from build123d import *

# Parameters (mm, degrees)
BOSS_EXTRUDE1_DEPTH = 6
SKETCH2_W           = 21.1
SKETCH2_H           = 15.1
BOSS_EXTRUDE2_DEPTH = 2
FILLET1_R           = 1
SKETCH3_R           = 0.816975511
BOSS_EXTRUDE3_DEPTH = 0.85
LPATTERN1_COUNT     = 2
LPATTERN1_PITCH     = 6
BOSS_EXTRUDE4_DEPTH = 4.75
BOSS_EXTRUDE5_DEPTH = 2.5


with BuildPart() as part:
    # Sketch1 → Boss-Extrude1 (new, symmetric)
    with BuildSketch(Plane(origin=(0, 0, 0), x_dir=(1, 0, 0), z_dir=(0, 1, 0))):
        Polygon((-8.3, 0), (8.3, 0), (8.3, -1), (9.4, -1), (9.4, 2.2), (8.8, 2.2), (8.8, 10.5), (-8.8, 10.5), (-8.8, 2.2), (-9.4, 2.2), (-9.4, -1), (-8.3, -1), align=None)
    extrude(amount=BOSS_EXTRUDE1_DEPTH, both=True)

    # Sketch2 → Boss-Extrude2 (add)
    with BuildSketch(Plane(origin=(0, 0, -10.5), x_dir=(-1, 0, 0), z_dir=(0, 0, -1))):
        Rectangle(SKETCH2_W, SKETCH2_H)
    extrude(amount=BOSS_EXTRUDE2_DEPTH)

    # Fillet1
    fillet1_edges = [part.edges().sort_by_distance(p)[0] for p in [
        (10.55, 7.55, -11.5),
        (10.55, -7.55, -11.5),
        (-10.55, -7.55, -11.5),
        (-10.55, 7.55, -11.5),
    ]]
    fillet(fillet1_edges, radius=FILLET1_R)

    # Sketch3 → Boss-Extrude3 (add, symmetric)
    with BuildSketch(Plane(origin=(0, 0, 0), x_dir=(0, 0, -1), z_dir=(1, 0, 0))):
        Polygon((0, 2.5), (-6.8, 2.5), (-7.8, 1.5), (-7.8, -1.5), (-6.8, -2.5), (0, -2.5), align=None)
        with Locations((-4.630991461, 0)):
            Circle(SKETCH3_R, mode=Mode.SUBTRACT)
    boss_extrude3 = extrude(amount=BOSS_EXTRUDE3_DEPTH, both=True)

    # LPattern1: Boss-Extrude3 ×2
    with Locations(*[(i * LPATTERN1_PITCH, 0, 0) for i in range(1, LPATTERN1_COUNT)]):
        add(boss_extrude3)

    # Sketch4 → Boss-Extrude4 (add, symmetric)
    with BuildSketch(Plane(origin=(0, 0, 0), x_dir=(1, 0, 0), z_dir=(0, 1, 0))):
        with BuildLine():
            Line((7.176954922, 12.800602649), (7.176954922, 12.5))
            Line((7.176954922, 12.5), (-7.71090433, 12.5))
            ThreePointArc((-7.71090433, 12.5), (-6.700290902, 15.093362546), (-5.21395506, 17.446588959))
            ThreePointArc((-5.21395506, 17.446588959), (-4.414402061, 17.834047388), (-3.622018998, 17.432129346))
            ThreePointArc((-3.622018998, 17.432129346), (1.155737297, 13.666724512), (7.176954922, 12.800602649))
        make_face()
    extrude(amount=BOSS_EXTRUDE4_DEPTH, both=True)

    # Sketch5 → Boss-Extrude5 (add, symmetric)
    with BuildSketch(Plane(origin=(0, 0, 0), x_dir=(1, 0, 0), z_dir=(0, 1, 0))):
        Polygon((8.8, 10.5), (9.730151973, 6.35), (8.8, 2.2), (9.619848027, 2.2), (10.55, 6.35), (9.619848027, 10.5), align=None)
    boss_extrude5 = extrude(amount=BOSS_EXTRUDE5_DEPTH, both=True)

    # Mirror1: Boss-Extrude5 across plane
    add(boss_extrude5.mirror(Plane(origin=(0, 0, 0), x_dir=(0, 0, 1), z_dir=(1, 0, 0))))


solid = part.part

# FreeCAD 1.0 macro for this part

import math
import FreeCAD as App
import Part
import Sketcher


def edges_at(feature, points):
    """Names of the edges that pass closest to the given points."""
    edges = feature.Shape.Edges
    near = lambda p: min(range(len(edges)), key=lambda i: edges[i].distToShape(Part.Vertex(*p))[0])
    return sorted({f"Edge{near(p) + 1}" for p in points})

doc = App.newDocument("Part")
params = doc.addObject("Spreadsheet::Sheet", "Params")
for row, (alias, value) in enumerate([
    ("sketch1_height", "1 mm"),
    ("sketch1_width", "16.6 mm"),
    ("sketch1_width2", "1.1 mm"),
    ("sketch1_width3", "0.6 mm"),
    ("sketch1_height2", "3.2 mm"),
    ("pad1_length", "12 mm"),
    ("sketch2_width", "21.1 mm"),
    ("sketch2_height", "15.1 mm"),
    ("pad2_length", "2 mm"),
    ("fillet_radius", "1 mm"),
    ("sketch3_width", "3 mm"),
    ("sketch3_width2", "5 mm"),
    ("sketch3_height", "6.8 mm"),
    ("pad3_length", "1.7 mm"),
    ("linearpattern_pitch", "6 mm"),
    ("sketch4_radius", "1 mm"),
    ("pad4_length", "9.5 mm"),
    ("pad5_length", "5 mm"),
], start=1):
    params.set(f"A{row}", alias)
    params.set(f"B{row}", "=" + value)
    params.setAlias(f"B{row}", alias)

body = doc.addObject("PartDesign::Body", "Body")

# Sketch on XZ plane
sketch1 = body.newObject("Sketcher::SketchObject", "Sketch")
sketch1.AttachmentSupport = (doc.getObject("XZ_Plane"), [""])
sketch1.MapMode = "FlatFace"
sketch1.addGeometry([
    Part.LineSegment(App.Vector(-8.3, 0, 0), App.Vector(8.3, 0, 0)),  # 0
    Part.LineSegment(App.Vector(8.3, 0, 0), App.Vector(8.3, 1, 0)),  # 1
    Part.LineSegment(App.Vector(8.3, 1, 0), App.Vector(9.4, 1, 0)),  # 2
    Part.LineSegment(App.Vector(9.4, 1, 0), App.Vector(9.4, -2.2, 0)),  # 3
    Part.LineSegment(App.Vector(9.4, -2.2, 0), App.Vector(8.8, -2.2, 0)),  # 4
    Part.LineSegment(App.Vector(8.8, -2.2, 0), App.Vector(8.8, -10.5, 0)),  # 5
    Part.LineSegment(App.Vector(8.8, -10.5, 0), App.Vector(-8.8, -10.5, 0)),  # 6
    Part.LineSegment(App.Vector(-8.8, -10.5, 0), App.Vector(-8.8, -2.2, 0)),  # 7
    Part.LineSegment(App.Vector(-8.8, -2.2, 0), App.Vector(-9.4, -2.2, 0)),  # 8
    Part.LineSegment(App.Vector(-9.4, -2.2, 0), App.Vector(-9.4, 1, 0)),  # 9
    Part.LineSegment(App.Vector(-9.4, 1, 0), App.Vector(-8.3, 1, 0)),  # 10
    Part.LineSegment(App.Vector(-8.3, 1, 0), App.Vector(-8.3, 0, 0)),  # 11
], False)
sketch1.addConstraint([
    Sketcher.Constraint("Coincident", 0, 2, 1, 1),
    Sketcher.Constraint("Coincident", 1, 2, 2, 1),
    Sketcher.Constraint("Coincident", 2, 2, 3, 1),
    Sketcher.Constraint("Coincident", 3, 2, 4, 1),
    Sketcher.Constraint("Coincident", 4, 2, 5, 1),
    Sketcher.Constraint("Coincident", 5, 2, 6, 1),
    Sketcher.Constraint("Coincident", 6, 2, 7, 1),
    Sketcher.Constraint("Coincident", 7, 2, 8, 1),
    Sketcher.Constraint("Coincident", 8, 2, 9, 1),
    Sketcher.Constraint("Coincident", 9, 2, 10, 1),
    Sketcher.Constraint("Coincident", 10, 2, 11, 1),
    Sketcher.Constraint("Coincident", 11, 2, 0, 1),
    Sketcher.Constraint("Horizontal", 0),
    Sketcher.Constraint("Vertical", 1),
    Sketcher.Constraint("Horizontal", 2),
    Sketcher.Constraint("Vertical", 3),
    Sketcher.Constraint("Horizontal", 4),
    Sketcher.Constraint("Vertical", 5),
    Sketcher.Constraint("Horizontal", 6),
    Sketcher.Constraint("Vertical", 7),
    Sketcher.Constraint("Horizontal", 8),
    Sketcher.Constraint("Vertical", 9),
    Sketcher.Constraint("Horizontal", 10),
    Sketcher.Constraint("Vertical", 11),
    Sketcher.Constraint("Symmetric", 0, 2, 11, 2, -1, 1),
    Sketcher.Constraint("Symmetric", 4, 2, 7, 2, -2),
    Sketcher.Constraint("Symmetric", 2, 2, 9, 2, -2),
    Sketcher.Constraint("DistanceY", 1, 1, 1, 2, 1.0),
    Sketcher.Constraint("DistanceX", 0, 1, 0, 2, 16.6),
    Sketcher.Constraint("DistanceX", 2, 1, 2, 2, 1.1),
    Sketcher.Constraint("DistanceX", 4, 2, 4, 1, 0.6),
    Sketcher.Constraint("DistanceY", 3, 2, 3, 1, 3.2),
    Sketcher.Constraint("DistanceY", 5, 2, 5, 1, 8.3),
])
sketch1.setExpression("Constraints[27]", "Params.sketch1_height")
sketch1.setExpression("Constraints[28]", "Params.sketch1_width")
sketch1.setExpression("Constraints[29]", "Params.sketch1_width2")
sketch1.setExpression("Constraints[30]", "Params.sketch1_width3")
sketch1.setExpression("Constraints[31]", "Params.sketch1_height2")
pad1 = body.newObject("PartDesign::Pad", "Pad")
pad1.Profile = sketch1
pad1.setExpression("Length", "Params.pad1_length")
pad1.Midplane = True

# Sketch on XY plane
sketch2 = body.newObject("Sketcher::SketchObject", "Sketch001")
sketch2.AttachmentSupport = (doc.getObject("XY_Plane"), [""])
sketch2.MapMode = "FlatFace"
sketch2.AttachmentOffset = App.Placement(App.Vector(0, 0, -10.5), App.Rotation())
sketch2.addGeometry([
    Part.LineSegment(App.Vector(11, 8, 0), App.Vector(11, -8, 0)),
    Part.LineSegment(App.Vector(11, -8, 0), App.Vector(-11, -8, 0)),
    Part.LineSegment(App.Vector(-11, -8, 0), App.Vector(-11, 8, 0)),
    Part.LineSegment(App.Vector(-11, 8, 0), App.Vector(11, 8, 0)),
], False)
sketch2.addConstraint([
    Sketcher.Constraint("Coincident", 0, 2, 1, 1),
    Sketcher.Constraint("Coincident", 1, 2, 2, 1),
    Sketcher.Constraint("Coincident", 2, 2, 3, 1),
    Sketcher.Constraint("Coincident", 3, 2, 0, 1),
    Sketcher.Constraint("Vertical", 0),
    Sketcher.Constraint("Horizontal", 1),
    Sketcher.Constraint("Vertical", 2),
    Sketcher.Constraint("Horizontal", 3),
    Sketcher.Constraint("Symmetric", 0, 2, 2, 2, -1, 1),
    Sketcher.Constraint("DistanceX", 1, 2, 1, 1, 21.1),
    Sketcher.Constraint("DistanceY", 0, 2, 0, 1, 15.1),
])
sketch2.setExpression("Constraints[9]", "Params.sketch2_width")
sketch2.setExpression("Constraints[10]", "Params.sketch2_height")
pad2 = body.newObject("PartDesign::Pad", "Pad001")
pad2.Profile = sketch2
pad2.setExpression("Length", "Params.pad2_length")
pad2.Reversed = True
doc.recompute()

fillet = body.newObject("PartDesign::Fillet", "Fillet")
fillet.Base = (pad2, edges_at(pad2, [
    (10.55, 7.55, -11.5),
    (10.55, -7.55, -11.5),
    (-10.55, -7.55, -11.5),
    (-10.55, 7.55, -11.5),
]))
fillet.setExpression("Radius", "Params.fillet_radius")

# Sketch on YZ plane
sketch3 = body.newObject("Sketcher::SketchObject", "Sketch002")
sketch3.AttachmentSupport = (doc.getObject("YZ_Plane"), [""])
sketch3.MapMode = "FlatFace"
sketch3.addGeometry([
    Part.LineSegment(App.Vector(2.5, 0, 0), App.Vector(2.5, 6.8, 0)),  # 0
    Part.LineSegment(App.Vector(2.5, 6.8, 0), App.Vector(1.5, 7.8, 0)),  # 1
    Part.LineSegment(App.Vector(1.5, 7.8, 0), App.Vector(-1.5, 7.8, 0)),  # 2
    Part.LineSegment(App.Vector(-1.5, 7.8, 0), App.Vector(-2.5, 6.8, 0)),  # 3
    Part.LineSegment(App.Vector(-2.5, 6.8, 0), App.Vector(-2.5, 0, 0)),  # 4
    Part.LineSegment(App.Vector(-2.5, 0, 0), App.Vector(2.5, 0, 0)),  # 5
    Part.Circle(App.Vector(0, 4.6, 0), App.Vector(0, 0, 1), 0.8),  # 6
], False)
sketch3.addConstraint([
    Sketcher.Constraint("Coincident", 0, 2, 1, 1),
    Sketcher.Constraint("Coincident", 1, 2, 2, 1),
    Sketcher.Constraint("Coincident", 2, 2, 3, 1),
    Sketcher.Constraint("Coincident", 3, 2, 4, 1),
    Sketcher.Constraint("Coincident", 4, 2, 5, 1),
    Sketcher.Constraint("Coincident", 5, 2, 0, 1),
    Sketcher.Constraint("Vertical", 0),
    Sketcher.Constraint("Horizontal", 2),
    Sketcher.Constraint("Vertical", 4),
    Sketcher.Constraint("Horizontal", 5),
    Sketcher.Constraint("Symmetric", 4, 2, 5, 2, -1, 1),
    Sketcher.Constraint("PointOnObject", 6, 3, -2),
    Sketcher.Constraint("Perpendicular", 1, 3),
    Sketcher.Constraint("Horizontal", 0, 2, 3, 2),
    Sketcher.Constraint("Equal", 1, 3),
    Sketcher.Constraint("DistanceX", 2, 2, 2, 1, 3.0),
    Sketcher.Constraint("DistanceX", 5, 1, 5, 2, 5.0),
    Sketcher.Constraint("DistanceY", 0, 1, 0, 2, 6.8),
    Sketcher.Constraint("Diameter", 6, 1.633951),
    Sketcher.Constraint("DistanceY", -1, 1, 6, 3, 4.630991),
])
sketch3.setExpression("Constraints[15]", "Params.sketch3_width")
sketch3.setExpression("Constraints[16]", "Params.sketch3_width2")
sketch3.setExpression("Constraints[17]", "Params.sketch3_height")
pad3 = body.newObject("PartDesign::Pad", "Pad002")
pad3.Profile = sketch3
pad3.setExpression("Length", "Params.pad3_length")
pad3.Midplane = True
doc.recompute()

linearpattern = body.newObject("PartDesign::LinearPattern", "LinearPattern")
linearpattern.Originals = [pad3]
linearpattern.Direction = (doc.getObject("X_Axis"), [""])
linearpattern.Mode = "offset"
linearpattern.setExpression("Offset", "Params.linearpattern_pitch")
linearpattern.Occurrences = 2
body.Tip = linearpattern

# Sketch on XZ plane
sketch4 = body.newObject("Sketcher::SketchObject", "Sketch003")
sketch4.AttachmentSupport = (doc.getObject("XZ_Plane"), [""])
sketch4.MapMode = "FlatFace"
sketch4.addGeometry([
    Part.LineSegment(App.Vector(7.18, -12.5, 0), App.Vector(7.18, -12.8, 0)),  # 0
    Part.ArcOfCircle(Part.Circle(App.Vector(5.78, -24.45, 0), App.Vector(0, 0, 1), 11.73), math.radians(83), math.radians(143)),  # 1
    Part.ArcOfCircle(Part.Circle(App.Vector(-4.42, -16.83, 0), App.Vector(0, 0, 1), 1), math.radians(-142), math.radians(-37)),  # 2
    Part.ArcOfCircle(Part.Circle(App.Vector(6.28, -8.54, 0), App.Vector(0, 0, 1), 14.54), math.radians(-164), math.radians(-142)),  # 3
    Part.LineSegment(App.Vector(-7.71, -12.5, 0), App.Vector(7.18, -12.5, 0)),  # 4
], False)
sketch4.addConstraint([
    Sketcher.Constraint("Coincident", 0, 2, 1, 1),
    Sketcher.Constraint("Tangent", 1, 2, 2, 2),
    Sketcher.Constraint("Tangent", 2, 1, 3, 2),
    Sketcher.Constraint("Coincident", 3, 1, 4, 1),
    Sketcher.Constraint("Coincident", 4, 2, 0, 1),
    Sketcher.Constraint("Vertical", 0),
    Sketcher.Constraint("Horizontal", 4),
    Sketcher.Constraint("Radius", 2, 1.0),
    Sketcher.Constraint("DistanceY", 3, 1, -1, 1, 12.5),
    Sketcher.Constraint("Radius", 1, 11.730245),
    Sketcher.Constraint("Radius", 3, 14.537324),
    Sketcher.Constraint("DistanceX", 1, 3, 3, 3, 0.497998),
    Sketcher.Constraint("DistanceX", 4, 1, 4, 2, 14.887859),
    Sketcher.Constraint("DistanceY", 2, 1, 2, 3, 0.6125),
    Sketcher.Constraint("DistanceY", 0, 2, 0, 1, 0.300603),
    Sketcher.Constraint("DistanceX", -1, 1, 1, 3, 5.77937),
])
sketch4.setExpression("Constraints[7]", "Params.sketch4_radius")
pad4 = body.newObject("PartDesign::Pad", "Pad003")
pad4.Profile = sketch4
pad4.setExpression("Length", "Params.pad4_length")
pad4.Midplane = True

# Sketch on XZ plane
sketch5 = body.newObject("Sketcher::SketchObject", "Sketch004")
sketch5.AttachmentSupport = (doc.getObject("XZ_Plane"), [""])
sketch5.MapMode = "FlatFace"
sketch5.addGeometry([
    Part.LineSegment(App.Vector(8.8, -10.5, 0), App.Vector(9.7, -6.3, 0)),  # 0
    Part.LineSegment(App.Vector(9.7, -6.3, 0), App.Vector(8.8, -2.2, 0)),  # 1
    Part.LineSegment(App.Vector(8.8, -2.2, 0), App.Vector(9.6, -2.2, 0)),  # 2
    Part.LineSegment(App.Vector(9.6, -2.2, 0), App.Vector(10.6, -6.3, 0)),  # 3
    Part.LineSegment(App.Vector(10.6, -6.3, 0), App.Vector(9.6, -10.5, 0)),  # 4
    Part.LineSegment(App.Vector(9.6, -10.5, 0), App.Vector(8.8, -10.5, 0)),  # 5
], False)
sketch5.addConstraint([
    Sketcher.Constraint("Coincident", 0, 2, 1, 1),
    Sketcher.Constraint("Coincident", 1, 2, 2, 1),
    Sketcher.Constraint("Coincident", 2, 2, 3, 1),
    Sketcher.Constraint("Coincident", 3, 2, 4, 1),
    Sketcher.Constraint("Coincident", 4, 2, 5, 1),
    Sketcher.Constraint("Coincident", 5, 2, 0, 1),
    Sketcher.Constraint("Horizontal", 2),
    Sketcher.Constraint("Horizontal", 5),
    Sketcher.Constraint("Parallel", 1, 3),
    Sketcher.Constraint("Parallel", 0, 4),
    Sketcher.Constraint("Horizontal", 0, 2, 3, 2),
    Sketcher.Constraint("Vertical", 2, 2, 4, 2),
    Sketcher.Constraint("Equal", 0, 1),
    Sketcher.Constraint("DistanceX", -1, 1, 1, 2, 8.8),
    Sketcher.Constraint("DistanceY", 1, 2, -1, 1, 2.2),
    Sketcher.Constraint("DistanceY", 4, 2, -1, 1, 10.5),
    Sketcher.Constraint("DistanceX", -1, 1, 3, 2, 10.55),
    Sketcher.Constraint("DistanceX", 2, 1, 2, 2, 0.819848),
])
pad5 = body.newObject("PartDesign::Pad", "Pad004")
pad5.Profile = sketch5
pad5.setExpression("Length", "Params.pad5_length")
pad5.Midplane = True
doc.recompute()

mirrored = body.newObject("PartDesign::Mirrored", "Mirrored")
mirrored.Originals = [pad5]
mirrored.MirrorPlane = (doc.getObject("YZ_Plane"), [""])
body.Tip = mirrored

doc.recompute()
